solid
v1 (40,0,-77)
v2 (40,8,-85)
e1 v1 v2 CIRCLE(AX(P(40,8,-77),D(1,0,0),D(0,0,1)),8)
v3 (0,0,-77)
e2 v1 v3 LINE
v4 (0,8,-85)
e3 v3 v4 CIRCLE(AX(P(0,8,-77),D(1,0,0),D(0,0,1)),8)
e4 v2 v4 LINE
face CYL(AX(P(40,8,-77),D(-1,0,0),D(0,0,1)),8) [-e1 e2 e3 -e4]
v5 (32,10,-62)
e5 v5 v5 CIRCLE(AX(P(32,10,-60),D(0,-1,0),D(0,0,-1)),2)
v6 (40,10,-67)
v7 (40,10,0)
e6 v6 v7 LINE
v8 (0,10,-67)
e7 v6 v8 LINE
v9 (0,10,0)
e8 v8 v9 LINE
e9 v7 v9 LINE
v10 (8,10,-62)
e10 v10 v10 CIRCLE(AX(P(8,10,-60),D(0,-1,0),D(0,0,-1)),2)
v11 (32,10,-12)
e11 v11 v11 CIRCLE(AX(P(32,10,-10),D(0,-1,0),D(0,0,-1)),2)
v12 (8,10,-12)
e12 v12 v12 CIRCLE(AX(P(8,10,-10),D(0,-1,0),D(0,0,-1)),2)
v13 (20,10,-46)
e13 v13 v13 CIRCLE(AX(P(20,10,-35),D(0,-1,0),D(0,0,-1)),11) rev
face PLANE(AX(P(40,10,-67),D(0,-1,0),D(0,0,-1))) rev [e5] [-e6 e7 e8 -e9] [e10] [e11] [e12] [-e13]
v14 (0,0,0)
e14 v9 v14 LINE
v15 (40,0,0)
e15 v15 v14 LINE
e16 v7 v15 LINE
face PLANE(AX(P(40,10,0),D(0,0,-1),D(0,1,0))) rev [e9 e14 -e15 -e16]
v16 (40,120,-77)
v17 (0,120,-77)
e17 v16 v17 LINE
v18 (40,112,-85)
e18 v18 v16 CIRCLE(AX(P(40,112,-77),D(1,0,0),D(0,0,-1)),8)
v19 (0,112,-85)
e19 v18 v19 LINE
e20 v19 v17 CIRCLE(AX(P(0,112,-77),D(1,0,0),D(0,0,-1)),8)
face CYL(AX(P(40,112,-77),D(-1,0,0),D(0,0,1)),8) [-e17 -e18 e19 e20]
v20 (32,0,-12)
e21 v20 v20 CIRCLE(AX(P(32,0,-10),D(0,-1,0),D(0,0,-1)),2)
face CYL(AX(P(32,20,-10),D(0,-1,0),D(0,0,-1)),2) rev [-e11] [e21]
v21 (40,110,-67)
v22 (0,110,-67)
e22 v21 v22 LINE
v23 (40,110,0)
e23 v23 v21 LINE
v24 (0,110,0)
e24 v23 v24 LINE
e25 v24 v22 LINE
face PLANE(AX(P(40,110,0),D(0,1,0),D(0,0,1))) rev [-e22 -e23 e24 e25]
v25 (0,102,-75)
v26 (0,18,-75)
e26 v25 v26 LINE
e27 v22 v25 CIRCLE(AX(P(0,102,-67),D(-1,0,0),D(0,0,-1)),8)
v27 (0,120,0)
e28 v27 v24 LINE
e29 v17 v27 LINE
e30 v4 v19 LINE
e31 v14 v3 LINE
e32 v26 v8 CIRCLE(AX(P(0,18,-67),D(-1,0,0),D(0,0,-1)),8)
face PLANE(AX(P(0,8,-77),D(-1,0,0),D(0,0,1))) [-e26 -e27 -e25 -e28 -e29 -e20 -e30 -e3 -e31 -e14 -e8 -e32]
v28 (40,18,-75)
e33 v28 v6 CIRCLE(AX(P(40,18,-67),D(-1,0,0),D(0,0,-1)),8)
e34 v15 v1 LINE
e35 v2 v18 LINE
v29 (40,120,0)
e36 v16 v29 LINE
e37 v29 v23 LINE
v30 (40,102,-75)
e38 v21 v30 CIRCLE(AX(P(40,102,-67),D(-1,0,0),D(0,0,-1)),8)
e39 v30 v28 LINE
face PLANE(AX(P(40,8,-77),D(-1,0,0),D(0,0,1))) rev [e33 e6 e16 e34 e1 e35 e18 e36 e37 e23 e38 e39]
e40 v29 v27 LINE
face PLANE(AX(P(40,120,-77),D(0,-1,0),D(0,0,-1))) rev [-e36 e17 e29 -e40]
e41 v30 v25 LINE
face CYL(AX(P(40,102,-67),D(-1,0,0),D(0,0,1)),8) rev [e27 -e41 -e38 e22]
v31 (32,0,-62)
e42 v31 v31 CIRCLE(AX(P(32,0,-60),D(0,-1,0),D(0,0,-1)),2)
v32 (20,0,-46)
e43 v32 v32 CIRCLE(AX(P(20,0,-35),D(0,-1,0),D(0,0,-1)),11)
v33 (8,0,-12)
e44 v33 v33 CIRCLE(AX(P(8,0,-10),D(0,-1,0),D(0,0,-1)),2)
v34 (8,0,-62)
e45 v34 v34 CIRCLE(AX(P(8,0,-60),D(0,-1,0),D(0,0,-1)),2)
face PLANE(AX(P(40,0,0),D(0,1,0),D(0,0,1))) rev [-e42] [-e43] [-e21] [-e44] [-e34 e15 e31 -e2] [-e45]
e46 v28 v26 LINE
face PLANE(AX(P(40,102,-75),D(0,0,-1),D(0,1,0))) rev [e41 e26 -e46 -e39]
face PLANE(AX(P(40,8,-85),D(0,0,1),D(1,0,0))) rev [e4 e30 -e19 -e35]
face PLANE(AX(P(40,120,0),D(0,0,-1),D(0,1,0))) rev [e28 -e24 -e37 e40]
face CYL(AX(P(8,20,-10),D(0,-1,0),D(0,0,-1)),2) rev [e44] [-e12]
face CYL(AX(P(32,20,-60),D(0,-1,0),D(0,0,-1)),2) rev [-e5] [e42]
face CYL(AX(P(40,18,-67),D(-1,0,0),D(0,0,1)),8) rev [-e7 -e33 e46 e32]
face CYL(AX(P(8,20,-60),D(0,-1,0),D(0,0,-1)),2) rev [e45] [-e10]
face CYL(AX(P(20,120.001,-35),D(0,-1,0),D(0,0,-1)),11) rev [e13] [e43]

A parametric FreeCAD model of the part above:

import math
import FreeCAD as App
import Part
import Sketcher

doc = App.newDocument("Part")
body = doc.addObject("PartDesign::Body", "Body")

sketch1 = doc.addObject("Sketcher::SketchObject", "Sketch")
body.addObject(sketch1)
sketch1.AttachmentSupport = (doc.YZ_Plane, [""])
sketch1.MapMode = "FlatFace"
sketch1.addGeometry([
    Part.LineSegment(App.Vector(0, 0, 0), App.Vector(0, -77, 0)),
    Part.ArcOfCircle(Part.Circle(App.Vector(8, -77, 0), App.Vector(0, 0, 1), 8), math.radians(-180), math.radians(-90)),
    Part.LineSegment(App.Vector(8, -85, 0), App.Vector(112, -85, 0)),
    Part.ArcOfCircle(Part.Circle(App.Vector(112, -77, 0), App.Vector(0, 0, 1), 8), math.radians(-90), math.radians(0)),
    Part.LineSegment(App.Vector(120, -77, 0), App.Vector(120, 0, 0)),
    Part.LineSegment(App.Vector(120, 0, 0), App.Vector(110, 0, 0)),
    Part.LineSegment(App.Vector(110, 0, 0), App.Vector(110, -67, 0)),
    Part.ArcOfCircle(Part.Circle(App.Vector(102, -67, 0), App.Vector(0, 0, 1), 8), math.radians(-90), math.radians(0)),
    Part.LineSegment(App.Vector(102, -75, 0), App.Vector(18, -75, 0)),
    Part.ArcOfCircle(Part.Circle(App.Vector(18, -67, 0), App.Vector(0, 0, 1), 8), math.radians(-180), math.radians(-90)),
    Part.LineSegment(App.Vector(10, -67, 0), App.Vector(10, 0, 0)),
    Part.LineSegment(App.Vector(10, 0, 0), App.Vector(0, 0, 0)),
], False)
sketch1.addConstraint([
    Sketcher.Constraint("Tangent", 0, 2, 1, 1),
    Sketcher.Constraint("Tangent", 1, 2, 2, 1),
    Sketcher.Constraint("Tangent", 2, 2, 3, 1),
    Sketcher.Constraint("Tangent", 3, 2, 4, 1),
    Sketcher.Constraint("Coincident", 4, 2, 5, 1),
    Sketcher.Constraint("Coincident", 5, 2, 6, 1),
    Sketcher.Constraint("Tangent", 6, 2, 7, 2),
    Sketcher.Constraint("Tangent", 7, 1, 8, 1),
    Sketcher.Constraint("Tangent", 8, 2, 9, 2),
    Sketcher.Constraint("Tangent", 9, 1, 10, 1),
    Sketcher.Constraint("Coincident", 10, 2, 11, 1),
    Sketcher.Constraint("Coincident", 11, 2, 0, 1),
    Sketcher.Constraint("Vertical", 0),
    Sketcher.Constraint("Horizontal", 2),
    Sketcher.Constraint("Vertical", 4),
    Sketcher.Constraint("Horizontal", 5),
    Sketcher.Constraint("Vertical", 6),
    Sketcher.Constraint("Horizontal", 8),
    Sketcher.Constraint("Vertical", 10),
    Sketcher.Constraint("Horizontal", 11),
    Sketcher.Constraint("Coincident", 11, 2, -1, 1),
    Sketcher.Constraint("Equal", 1, 3),
    Sketcher.Constraint("Equal", 3, 7),
    Sketcher.Constraint("Equal", 7, 9),
    Sketcher.Constraint("PointOnObject", 4, 2, -1),
    Sketcher.Constraint("Equal", 5, 11),
    Sketcher.Constraint("Radius", 1, 8.0),
    Sketcher.Constraint("DistanceX", 2, 1, 2, 2, 104.0),
    Sketcher.Constraint("DistanceX", 5, 2, 5, 1, 10.0),
    Sketcher.Constraint("DistanceY", 0, 2, 0, 1, 77.0),
    Sketcher.Constraint("DistanceY", 6, 2, 6, 1, 67.0),
])
pad1 = doc.addObject("PartDesign::Pad", "Pad")
body.addObject(pad1)
pad1.Profile = sketch1
pad1.Length = 40

sketch2 = doc.addObject("Sketcher::SketchObject", "Sketch001")
body.addObject(sketch2)
sketch2.AttachmentSupport = (doc.XZ_Plane, [""])
sketch2.MapMode = "FlatFace"
sketch2.addGeometry(Part.Circle(App.Vector(20, -35, 0), App.Vector(0, 0, 1), 11), False)
sketch2.addConstraint([
    Sketcher.Constraint("Diameter", 0, 22.0),
    Sketcher.Constraint("DistanceX", -1, 1, 0, 3, 20.0),
    Sketcher.Constraint("DistanceY", 0, 3, -1, 1, 35.0),
])
pocket1 = doc.addObject("PartDesign::Pocket", "Pocket")
body.addObject(pocket1)
pocket1.Profile = sketch2
pocket1.Type = "UpToFirst"

sketch3 = doc.addObject("Sketcher::SketchObject", "Sketch002")
body.addObject(sketch3)
sketch3.AttachmentSupport = (doc.XZ_Plane, [""])
sketch3.MapMode = "FlatFace"
sketch3.addGeometry([
    Part.Circle(App.Vector(8, -10, 0), App.Vector(0, 0, 1), 2),
    Part.Circle(App.Vector(32, -10, 0), App.Vector(0, 0, 1), 2),
    Part.Circle(App.Vector(8, -60, 0), App.Vector(0, 0, 1), 2),
    Part.Circle(App.Vector(32, -60, 0), App.Vector(0, 0, 1), 2),
], False)
sketch3.addConstraint([
    Sketcher.Constraint("Equal", 0, 1),
    Sketcher.Constraint("Equal", 1, 2),
    Sketcher.Constraint("Equal", 2, 3),
    Sketcher.Constraint("Horizontal", 0, 3, 1, 3),
    Sketcher.Constraint("Horizontal", 2, 3, 3, 3),
    Sketcher.Constraint("Vertical", 0, 3, 2, 3),
    Sketcher.Constraint("Vertical", 1, 3, 3, 3),
    Sketcher.Constraint("Diameter", 0, 4.0),
    Sketcher.Constraint("DistanceX", -1, 1, 0, 3, 8.0),
    Sketcher.Constraint("DistanceY", 0, 3, -1, 1, 10.0),
    Sketcher.Constraint("DistanceX", -1, 1, 1, 3, 32.0),
    Sketcher.Constraint("DistanceY", 2, 3, -1, 1, 60.0),
])
pocket2 = doc.addObject("PartDesign::Pocket", "Pocket001")
body.addObject(pocket2)
pocket2.Profile = sketch3
pocket2.Length = 20

doc.recompute()
